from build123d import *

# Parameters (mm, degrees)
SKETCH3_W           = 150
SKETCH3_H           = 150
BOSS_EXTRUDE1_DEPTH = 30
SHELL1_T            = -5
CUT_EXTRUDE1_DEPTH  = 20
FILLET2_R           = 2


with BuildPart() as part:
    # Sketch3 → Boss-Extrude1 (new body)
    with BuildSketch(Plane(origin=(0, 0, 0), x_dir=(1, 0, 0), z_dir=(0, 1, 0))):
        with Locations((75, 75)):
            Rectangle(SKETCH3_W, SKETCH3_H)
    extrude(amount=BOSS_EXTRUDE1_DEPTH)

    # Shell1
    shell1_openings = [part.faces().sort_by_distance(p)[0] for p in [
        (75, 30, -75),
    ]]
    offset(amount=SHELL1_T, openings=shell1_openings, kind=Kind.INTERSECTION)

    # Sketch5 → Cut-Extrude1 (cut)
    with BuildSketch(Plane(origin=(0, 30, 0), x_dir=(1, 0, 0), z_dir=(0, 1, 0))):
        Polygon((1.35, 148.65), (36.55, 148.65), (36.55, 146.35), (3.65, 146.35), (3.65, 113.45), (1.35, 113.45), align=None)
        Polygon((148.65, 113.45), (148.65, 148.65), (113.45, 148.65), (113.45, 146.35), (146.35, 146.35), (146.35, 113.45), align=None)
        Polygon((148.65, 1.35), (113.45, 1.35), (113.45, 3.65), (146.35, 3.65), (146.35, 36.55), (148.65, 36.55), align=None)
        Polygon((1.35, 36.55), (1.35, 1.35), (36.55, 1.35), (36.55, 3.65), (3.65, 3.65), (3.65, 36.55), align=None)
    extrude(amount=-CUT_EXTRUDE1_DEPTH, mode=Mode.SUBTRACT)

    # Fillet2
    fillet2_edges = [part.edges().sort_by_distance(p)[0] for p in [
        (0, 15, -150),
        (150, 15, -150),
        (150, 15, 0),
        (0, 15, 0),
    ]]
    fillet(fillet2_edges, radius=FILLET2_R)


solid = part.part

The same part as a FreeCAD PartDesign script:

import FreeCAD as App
import Part
import Sketcher

V = App.Vector


def edges_at(feature, points):
    """Names of the edges that pass closest to the given points."""
    edges = feature.Shape.Edges
    near = lambda p: min(range(len(edges)), key=lambda i: edges[i].distToShape(Part.Vertex(*p))[0])
    return sorted({f"Edge{near(p) + 1}" for p in points})


def faces_at(feature, points):
    """Names of the faces that lie closest to the given points."""
    faces = feature.Shape.Faces
    near = lambda p: min(range(len(faces)), key=lambda i: faces[i].distToShape(Part.Vertex(*p))[0])
    return sorted({f"Face{near(p) + 1}" for p in points})


def add_polygon(sketch, points):
    """Adds a closed chain of lines whose ends are joined by coincident constraints."""
    first, n = sketch.GeometryCount, len(points)
    for a, b in zip(points, points[1:] + points[:1]):
        sketch.addGeometry(Part.LineSegment(App.Vector(*a, 0), App.Vector(*b, 0)), False)
    for i in range(n):
        sketch.addConstraint(Sketcher.Constraint("Coincident", first + i, 2, first + (i + 1) % n, 1))

doc = App.newDocument("Part")
body = doc.addObject("PartDesign::Body", "Body")

# Sketch on XZ plane
sketch1 = body.newObject("Sketcher::SketchObject", "Sketch")
sketch1.AttachmentSupport = (doc.getObject("XZ_Plane"), [""])
sketch1.MapMode = "FlatFace"
add_polygon(sketch1, [(0, -150), (0, 0), (150, 0), (150, -150)])  # lines 0-3
sketch1.addConstraint([
    Sketcher.Constraint("Vertical", 0),
    Sketcher.Constraint("Horizontal", 1),
    Sketcher.Constraint("Vertical", 2),
    Sketcher.Constraint("Horizontal", 3),
    Sketcher.Constraint("Coincident", 0, 2, -1, 1),
    Sketcher.Constraint("Equal", 3, 0),
    Sketcher.Constraint("DistanceX", 1, 1, 1, 2, 150.0),
])
pad1 = body.newObject("PartDesign::Pad", "Pad")
pad1.Profile = sketch1
pad1.Length = 30
pad1.Reversed = True
doc.recompute()

thickness = body.newObject("PartDesign::Thickness", "Thickness")
thickness.Base = (pad1, faces_at(pad1, [(75, 30, -75)]))
thickness.Value = 5
thickness.Reversed = True
thickness.Join = "Intersection"

# Sketch on XZ plane
sketch2 = body.newObject("Sketcher::SketchObject", "Sketch001")
sketch2.AttachmentSupport = (doc.getObject("XZ_Plane"), [""])
sketch2.MapMode = "FlatFace"
sketch2.AttachmentOffset = App.Placement(V(0, 0, -30), App.Rotation())
add_polygon(sketch2, [(36.5, -148.7), (1.4, -148.7), (1.4, -113.5), (3.6, -113.5), (3.6, -146.3), (36.5, -146.3)])  # lines 0-5
add_polygon(sketch2, [(148.7, -113.5), (148.7, -148.7), (113.5, -148.7), (113.5, -146.3), (146.3, -146.3), (146.3, -113.5)])  # lines 6-11
add_polygon(sketch2, [(113.5, -1.4), (148.7, -1.4), (148.7, -36.5), (146.3, -36.5), (146.3, -3.6), (113.5, -3.6)])  # lines 12-17
add_polygon(sketch2, [(1.4, -36.5), (1.4, -1.4), (36.5, -1.4), (36.5, -3.6), (3.6, -3.6), (3.6, -36.5)])  # lines 18-23
sketch2.addConstraint([
    Sketcher.Constraint("Horizontal", 0),
    Sketcher.Constraint("Vertical", 1),
    Sketcher.Constraint("Horizontal", 2),
    Sketcher.Constraint("Vertical", 3),
    Sketcher.Constraint("Horizontal", 4),
    Sketcher.Constraint("Vertical", 5),
    Sketcher.Constraint("Vertical", 6),
    Sketcher.Constraint("Horizontal", 7),
    Sketcher.Constraint("Vertical", 8),
    Sketcher.Constraint("Horizontal", 9),
    Sketcher.Constraint("Vertical", 10),
    Sketcher.Constraint("Horizontal", 11),
    Sketcher.Constraint("Horizontal", 12),
    Sketcher.Constraint("Vertical", 13),
    Sketcher.Constraint("Horizontal", 14),
    Sketcher.Constraint("Vertical", 15),
    Sketcher.Constraint("Horizontal", 16),
    Sketcher.Constraint("Vertical", 17),
    Sketcher.Constraint("Vertical", 18),
    Sketcher.Constraint("Horizontal", 19),
    Sketcher.Constraint("Vertical", 20),
    Sketcher.Constraint("Horizontal", 21),
    Sketcher.Constraint("Vertical", 22),
    Sketcher.Constraint("Horizontal", 23),
    Sketcher.Constraint("Horizontal", 5, 2, 6, 2),
    Sketcher.Constraint("Horizontal", 4, 2, 8, 2),
    Sketcher.Constraint("Horizontal", 2, 2, 10, 2),
    Sketcher.Constraint("Horizontal", 17, 2, 18, 2),
    Sketcher.Constraint("Horizontal", 16, 2, 20, 2),
    Sketcher.Constraint("Horizontal", 14, 2, 22, 2),
    Sketcher.Constraint("Vertical", 11, 2, 12, 2),
    Sketcher.Constraint("Vertical", 10, 2, 14, 2),
    Sketcher.Constraint("Vertical", 8, 2, 16, 2),
    Sketcher.Constraint("Vertical", 1, 2, 18, 2),
    Sketcher.Constraint("Vertical", 5, 2, 19, 2),
    Sketcher.Constraint("Vertical", 3, 2, 21, 2),
    Sketcher.Constraint("Equal", 0, 7),
    Sketcher.Constraint("Equal", 4, 9),
    Sketcher.Constraint("Equal", 19, 1),
    Sketcher.Constraint("Equal", 21, 3),
    Sketcher.Constraint("Equal", 6, 13),
    Sketcher.Constraint("Equal", 10, 15),
    Sketcher.Constraint("DistanceX", 0, 2, 0, 1, 35.2),
    Sketcher.Constraint("DistanceX", 2, 1, 2, 2, 2.3),
    Sketcher.Constraint("DistanceX", 3, 2, 6, 2, 145.0),
    Sketcher.Constraint("DistanceY", 9, 2, 12, 2, 145.0),
    Sketcher.Constraint("DistanceX", -1, 1, 0, 2, 1.35),
    Sketcher.Constraint("DistanceY", 0, 2, -1, 1, 148.65),
])
pocket1 = body.newObject("PartDesign::Pocket", "Pocket")
pocket1.Profile = sketch2
pocket1.Length = 20
pocket1.Reversed = True
doc.recompute()

fillet = body.newObject("PartDesign::Fillet", "Fillet")
fillet.Base = (pocket1, edges_at(pocket1, [
    (0, 15, -150),
    (150, 15, -150),
    (150, 15, 0),
    (0, 15, 0),
]))
fillet.Radius = 2

doc.recompute()
